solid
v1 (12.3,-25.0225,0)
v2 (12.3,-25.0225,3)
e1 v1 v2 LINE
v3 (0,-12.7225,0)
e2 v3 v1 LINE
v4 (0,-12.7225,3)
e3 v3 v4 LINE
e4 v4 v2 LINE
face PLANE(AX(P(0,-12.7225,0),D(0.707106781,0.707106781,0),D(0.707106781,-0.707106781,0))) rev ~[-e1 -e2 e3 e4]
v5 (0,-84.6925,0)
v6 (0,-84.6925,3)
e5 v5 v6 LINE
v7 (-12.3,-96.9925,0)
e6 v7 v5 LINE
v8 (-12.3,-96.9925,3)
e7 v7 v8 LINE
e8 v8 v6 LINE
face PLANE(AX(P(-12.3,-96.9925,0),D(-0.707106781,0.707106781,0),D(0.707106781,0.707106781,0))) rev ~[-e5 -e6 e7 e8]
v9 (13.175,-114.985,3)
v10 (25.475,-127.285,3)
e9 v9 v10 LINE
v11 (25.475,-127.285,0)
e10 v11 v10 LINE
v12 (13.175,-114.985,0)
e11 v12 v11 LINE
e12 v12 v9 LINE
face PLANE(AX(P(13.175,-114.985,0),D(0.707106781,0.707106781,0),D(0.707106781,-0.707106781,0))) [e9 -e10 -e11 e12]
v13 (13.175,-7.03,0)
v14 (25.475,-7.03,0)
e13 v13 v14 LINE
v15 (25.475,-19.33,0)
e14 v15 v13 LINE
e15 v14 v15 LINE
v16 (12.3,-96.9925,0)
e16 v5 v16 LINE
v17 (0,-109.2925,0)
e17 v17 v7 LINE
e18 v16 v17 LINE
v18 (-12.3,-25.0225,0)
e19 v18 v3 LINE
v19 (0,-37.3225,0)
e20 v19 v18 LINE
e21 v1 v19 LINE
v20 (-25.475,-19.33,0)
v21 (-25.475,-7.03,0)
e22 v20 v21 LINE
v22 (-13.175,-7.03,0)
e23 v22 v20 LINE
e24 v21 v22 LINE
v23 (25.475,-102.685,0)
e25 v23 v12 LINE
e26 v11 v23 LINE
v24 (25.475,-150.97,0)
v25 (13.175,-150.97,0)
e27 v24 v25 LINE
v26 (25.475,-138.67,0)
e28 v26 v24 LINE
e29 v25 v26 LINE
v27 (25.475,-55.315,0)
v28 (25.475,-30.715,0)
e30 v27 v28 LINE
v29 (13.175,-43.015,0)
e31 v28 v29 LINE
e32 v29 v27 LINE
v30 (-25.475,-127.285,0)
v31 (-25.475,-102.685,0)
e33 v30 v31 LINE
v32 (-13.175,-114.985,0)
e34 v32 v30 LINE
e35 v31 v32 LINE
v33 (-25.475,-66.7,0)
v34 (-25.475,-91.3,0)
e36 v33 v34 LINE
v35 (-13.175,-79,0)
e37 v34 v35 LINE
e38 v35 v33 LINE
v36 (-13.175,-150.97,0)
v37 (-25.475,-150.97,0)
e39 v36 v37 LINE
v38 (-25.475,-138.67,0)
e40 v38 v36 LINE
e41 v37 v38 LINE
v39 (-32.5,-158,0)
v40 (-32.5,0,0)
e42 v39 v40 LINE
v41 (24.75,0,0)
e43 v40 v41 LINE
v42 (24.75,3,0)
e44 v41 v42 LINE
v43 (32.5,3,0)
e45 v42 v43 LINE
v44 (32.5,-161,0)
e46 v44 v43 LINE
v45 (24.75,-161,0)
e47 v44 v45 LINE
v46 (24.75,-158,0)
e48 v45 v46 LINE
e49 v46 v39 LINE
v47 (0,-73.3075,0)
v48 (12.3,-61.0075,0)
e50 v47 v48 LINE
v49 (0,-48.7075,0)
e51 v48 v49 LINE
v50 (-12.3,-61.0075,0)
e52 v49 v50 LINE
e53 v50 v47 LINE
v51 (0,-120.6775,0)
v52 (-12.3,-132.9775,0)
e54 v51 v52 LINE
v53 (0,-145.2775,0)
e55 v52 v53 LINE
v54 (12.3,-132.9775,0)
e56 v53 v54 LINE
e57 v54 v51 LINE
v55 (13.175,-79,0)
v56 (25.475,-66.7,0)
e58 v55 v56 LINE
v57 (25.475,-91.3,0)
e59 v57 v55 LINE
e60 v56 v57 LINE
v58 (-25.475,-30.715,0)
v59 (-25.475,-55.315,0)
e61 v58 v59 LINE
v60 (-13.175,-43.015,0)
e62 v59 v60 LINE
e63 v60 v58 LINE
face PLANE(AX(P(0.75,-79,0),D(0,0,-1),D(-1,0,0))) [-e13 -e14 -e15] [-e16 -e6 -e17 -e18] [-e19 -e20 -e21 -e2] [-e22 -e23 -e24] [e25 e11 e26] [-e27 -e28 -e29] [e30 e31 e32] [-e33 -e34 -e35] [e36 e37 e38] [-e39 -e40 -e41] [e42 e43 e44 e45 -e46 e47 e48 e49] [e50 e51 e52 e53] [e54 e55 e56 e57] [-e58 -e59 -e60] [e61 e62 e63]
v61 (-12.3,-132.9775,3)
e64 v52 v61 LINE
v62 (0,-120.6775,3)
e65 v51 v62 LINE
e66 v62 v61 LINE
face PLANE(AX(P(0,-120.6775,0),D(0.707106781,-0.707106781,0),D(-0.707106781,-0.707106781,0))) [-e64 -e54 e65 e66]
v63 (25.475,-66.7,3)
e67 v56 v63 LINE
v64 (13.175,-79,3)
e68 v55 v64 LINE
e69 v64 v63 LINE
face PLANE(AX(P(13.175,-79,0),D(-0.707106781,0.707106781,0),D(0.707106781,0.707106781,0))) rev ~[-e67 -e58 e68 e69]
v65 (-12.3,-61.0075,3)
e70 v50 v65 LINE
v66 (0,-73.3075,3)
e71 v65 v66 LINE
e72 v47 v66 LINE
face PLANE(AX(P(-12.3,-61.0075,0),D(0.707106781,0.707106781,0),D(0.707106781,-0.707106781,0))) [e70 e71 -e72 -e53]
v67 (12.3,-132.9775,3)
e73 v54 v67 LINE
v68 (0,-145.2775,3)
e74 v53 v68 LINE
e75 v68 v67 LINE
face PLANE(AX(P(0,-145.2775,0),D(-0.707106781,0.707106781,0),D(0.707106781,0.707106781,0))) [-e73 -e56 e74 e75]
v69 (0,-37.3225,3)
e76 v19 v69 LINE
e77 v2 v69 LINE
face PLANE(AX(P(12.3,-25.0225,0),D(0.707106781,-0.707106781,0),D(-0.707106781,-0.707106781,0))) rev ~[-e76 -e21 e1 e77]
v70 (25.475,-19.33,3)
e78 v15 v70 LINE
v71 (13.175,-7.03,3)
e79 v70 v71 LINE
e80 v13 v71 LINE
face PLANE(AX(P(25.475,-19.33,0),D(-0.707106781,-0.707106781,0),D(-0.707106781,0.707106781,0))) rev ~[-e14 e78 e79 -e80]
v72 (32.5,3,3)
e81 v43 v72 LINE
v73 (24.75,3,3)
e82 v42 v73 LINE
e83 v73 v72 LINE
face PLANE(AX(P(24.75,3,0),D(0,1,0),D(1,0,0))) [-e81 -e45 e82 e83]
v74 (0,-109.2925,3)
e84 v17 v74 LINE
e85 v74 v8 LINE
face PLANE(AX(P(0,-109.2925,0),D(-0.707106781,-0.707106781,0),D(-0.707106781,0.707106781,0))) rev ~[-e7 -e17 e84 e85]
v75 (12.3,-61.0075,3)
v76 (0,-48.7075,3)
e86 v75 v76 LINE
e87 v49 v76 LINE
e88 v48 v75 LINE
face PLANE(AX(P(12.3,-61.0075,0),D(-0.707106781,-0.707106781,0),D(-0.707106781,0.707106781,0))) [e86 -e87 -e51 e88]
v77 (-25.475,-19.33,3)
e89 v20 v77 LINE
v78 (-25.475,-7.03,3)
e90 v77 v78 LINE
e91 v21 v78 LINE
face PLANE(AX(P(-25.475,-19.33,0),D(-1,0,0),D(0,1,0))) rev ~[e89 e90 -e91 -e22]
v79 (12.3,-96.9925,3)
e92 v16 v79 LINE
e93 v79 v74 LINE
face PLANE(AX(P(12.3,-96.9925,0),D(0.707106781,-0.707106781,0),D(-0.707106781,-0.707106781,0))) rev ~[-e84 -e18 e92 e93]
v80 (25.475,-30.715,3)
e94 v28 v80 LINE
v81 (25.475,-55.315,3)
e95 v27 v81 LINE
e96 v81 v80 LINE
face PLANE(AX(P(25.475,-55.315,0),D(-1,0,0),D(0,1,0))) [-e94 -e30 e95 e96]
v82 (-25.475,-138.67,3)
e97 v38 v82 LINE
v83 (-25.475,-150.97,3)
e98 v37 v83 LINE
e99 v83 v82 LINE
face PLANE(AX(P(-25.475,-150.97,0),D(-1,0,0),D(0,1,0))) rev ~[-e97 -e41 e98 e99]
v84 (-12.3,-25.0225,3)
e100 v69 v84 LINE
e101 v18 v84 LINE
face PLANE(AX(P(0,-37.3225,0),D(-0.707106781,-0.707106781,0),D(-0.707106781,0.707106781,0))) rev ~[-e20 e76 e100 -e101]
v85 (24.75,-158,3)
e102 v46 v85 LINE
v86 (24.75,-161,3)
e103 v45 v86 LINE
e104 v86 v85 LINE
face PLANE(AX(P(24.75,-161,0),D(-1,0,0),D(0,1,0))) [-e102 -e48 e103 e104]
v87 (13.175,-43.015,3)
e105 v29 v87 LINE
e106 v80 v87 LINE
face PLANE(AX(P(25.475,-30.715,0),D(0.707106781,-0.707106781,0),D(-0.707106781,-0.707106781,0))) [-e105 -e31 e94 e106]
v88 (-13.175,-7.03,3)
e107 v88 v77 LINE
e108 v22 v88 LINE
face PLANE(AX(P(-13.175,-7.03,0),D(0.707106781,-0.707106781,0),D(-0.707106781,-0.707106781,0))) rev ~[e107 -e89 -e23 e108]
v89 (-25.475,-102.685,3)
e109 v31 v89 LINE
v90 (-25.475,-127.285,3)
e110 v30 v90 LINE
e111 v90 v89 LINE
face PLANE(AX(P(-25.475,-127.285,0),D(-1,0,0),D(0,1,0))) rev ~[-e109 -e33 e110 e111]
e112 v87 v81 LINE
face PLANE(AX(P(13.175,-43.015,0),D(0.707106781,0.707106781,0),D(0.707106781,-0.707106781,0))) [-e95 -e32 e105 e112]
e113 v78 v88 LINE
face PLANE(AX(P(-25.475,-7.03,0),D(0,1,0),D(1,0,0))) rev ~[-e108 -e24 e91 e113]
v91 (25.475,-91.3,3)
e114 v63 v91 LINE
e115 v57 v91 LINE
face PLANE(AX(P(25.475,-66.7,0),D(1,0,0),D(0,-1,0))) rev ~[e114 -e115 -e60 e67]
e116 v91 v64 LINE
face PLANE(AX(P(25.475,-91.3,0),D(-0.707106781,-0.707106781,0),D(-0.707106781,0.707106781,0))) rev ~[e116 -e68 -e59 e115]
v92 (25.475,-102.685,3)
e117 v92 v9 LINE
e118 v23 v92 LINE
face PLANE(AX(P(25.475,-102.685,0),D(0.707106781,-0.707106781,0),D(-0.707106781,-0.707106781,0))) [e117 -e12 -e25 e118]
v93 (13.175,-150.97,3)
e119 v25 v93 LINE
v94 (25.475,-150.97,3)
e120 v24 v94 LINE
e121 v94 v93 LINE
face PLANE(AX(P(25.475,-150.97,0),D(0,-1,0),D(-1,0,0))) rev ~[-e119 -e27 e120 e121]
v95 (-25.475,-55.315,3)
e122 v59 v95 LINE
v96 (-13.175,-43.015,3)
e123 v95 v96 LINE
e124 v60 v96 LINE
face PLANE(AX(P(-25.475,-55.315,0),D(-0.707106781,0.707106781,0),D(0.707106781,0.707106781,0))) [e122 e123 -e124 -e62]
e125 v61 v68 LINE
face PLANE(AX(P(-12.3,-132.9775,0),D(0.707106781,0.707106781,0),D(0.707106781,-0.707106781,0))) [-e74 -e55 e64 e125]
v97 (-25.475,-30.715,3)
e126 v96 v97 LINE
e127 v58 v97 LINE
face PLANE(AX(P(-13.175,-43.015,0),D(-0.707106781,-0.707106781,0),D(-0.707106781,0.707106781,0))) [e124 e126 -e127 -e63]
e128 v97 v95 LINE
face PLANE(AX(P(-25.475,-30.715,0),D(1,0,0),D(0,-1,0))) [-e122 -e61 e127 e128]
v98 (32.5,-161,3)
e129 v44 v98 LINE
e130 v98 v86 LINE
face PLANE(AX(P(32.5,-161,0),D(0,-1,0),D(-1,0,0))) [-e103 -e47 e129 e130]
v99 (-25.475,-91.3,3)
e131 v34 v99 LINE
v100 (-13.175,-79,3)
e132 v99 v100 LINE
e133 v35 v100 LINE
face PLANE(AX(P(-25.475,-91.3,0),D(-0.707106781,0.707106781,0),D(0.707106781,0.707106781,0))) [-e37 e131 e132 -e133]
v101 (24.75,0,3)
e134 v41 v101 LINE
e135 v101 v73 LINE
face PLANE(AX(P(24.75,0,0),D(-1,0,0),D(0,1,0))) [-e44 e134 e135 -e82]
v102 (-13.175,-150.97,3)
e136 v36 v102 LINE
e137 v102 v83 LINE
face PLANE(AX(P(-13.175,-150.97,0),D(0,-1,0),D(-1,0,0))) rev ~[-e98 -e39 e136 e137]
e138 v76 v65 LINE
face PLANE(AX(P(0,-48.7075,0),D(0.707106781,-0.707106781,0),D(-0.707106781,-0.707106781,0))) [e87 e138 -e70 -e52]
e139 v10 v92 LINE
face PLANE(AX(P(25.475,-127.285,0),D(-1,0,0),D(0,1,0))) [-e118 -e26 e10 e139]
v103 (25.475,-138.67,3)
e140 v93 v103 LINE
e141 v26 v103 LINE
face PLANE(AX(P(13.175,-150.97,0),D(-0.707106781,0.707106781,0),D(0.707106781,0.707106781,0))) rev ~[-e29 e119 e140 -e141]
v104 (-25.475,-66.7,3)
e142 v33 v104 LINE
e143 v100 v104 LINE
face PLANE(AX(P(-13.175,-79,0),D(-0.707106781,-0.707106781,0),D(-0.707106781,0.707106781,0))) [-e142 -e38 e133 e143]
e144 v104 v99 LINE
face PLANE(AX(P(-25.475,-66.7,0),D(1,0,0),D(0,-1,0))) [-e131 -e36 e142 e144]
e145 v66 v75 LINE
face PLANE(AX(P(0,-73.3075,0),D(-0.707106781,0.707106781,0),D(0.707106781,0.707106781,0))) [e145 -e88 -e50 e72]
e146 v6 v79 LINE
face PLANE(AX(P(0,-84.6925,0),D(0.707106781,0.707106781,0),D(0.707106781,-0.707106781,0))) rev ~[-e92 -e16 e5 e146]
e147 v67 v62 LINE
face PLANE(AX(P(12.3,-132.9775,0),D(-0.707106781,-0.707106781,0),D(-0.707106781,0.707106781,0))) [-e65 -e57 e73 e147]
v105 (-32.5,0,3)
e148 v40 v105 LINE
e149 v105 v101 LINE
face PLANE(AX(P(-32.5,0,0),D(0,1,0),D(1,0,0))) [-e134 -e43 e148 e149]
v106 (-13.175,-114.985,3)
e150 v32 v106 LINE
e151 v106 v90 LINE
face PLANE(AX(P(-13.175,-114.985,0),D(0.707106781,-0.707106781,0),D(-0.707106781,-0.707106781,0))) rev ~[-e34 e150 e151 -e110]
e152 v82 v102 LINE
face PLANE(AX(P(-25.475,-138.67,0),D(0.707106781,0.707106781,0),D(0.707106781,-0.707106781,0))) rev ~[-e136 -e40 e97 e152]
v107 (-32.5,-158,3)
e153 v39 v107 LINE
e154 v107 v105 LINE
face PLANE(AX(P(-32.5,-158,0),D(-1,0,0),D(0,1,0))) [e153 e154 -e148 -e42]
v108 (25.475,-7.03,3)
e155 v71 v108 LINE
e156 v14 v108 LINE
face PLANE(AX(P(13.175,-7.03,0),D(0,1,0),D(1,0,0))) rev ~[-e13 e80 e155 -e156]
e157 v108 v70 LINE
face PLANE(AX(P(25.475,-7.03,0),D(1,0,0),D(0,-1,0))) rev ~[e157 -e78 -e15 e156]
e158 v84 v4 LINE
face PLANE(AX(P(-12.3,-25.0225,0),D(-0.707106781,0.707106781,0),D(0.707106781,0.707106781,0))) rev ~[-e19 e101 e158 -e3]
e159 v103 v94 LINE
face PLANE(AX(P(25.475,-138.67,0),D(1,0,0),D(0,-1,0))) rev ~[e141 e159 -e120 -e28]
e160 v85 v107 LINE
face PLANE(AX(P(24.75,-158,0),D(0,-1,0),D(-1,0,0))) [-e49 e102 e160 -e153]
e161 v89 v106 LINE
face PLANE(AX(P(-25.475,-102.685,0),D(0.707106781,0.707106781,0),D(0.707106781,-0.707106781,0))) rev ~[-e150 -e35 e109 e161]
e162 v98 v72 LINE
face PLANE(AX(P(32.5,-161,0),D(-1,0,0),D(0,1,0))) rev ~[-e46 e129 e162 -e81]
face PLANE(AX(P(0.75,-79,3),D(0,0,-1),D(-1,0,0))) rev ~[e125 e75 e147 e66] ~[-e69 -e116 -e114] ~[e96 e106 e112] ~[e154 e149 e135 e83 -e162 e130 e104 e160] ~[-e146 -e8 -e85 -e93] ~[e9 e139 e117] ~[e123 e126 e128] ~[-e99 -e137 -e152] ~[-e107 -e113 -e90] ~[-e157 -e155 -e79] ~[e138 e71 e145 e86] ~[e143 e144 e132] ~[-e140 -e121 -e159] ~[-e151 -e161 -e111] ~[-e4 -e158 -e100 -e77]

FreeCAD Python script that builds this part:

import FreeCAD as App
import Part
import Sketcher


def add_polygon(sketch, points):
    """Adds a closed chain of lines whose ends are joined by coincident constraints."""
    first, n = sketch.GeometryCount, len(points)
    for a, b in zip(points, points[1:] + points[:1]):
        sketch.addGeometry(Part.LineSegment(App.Vector(*a, 0), App.Vector(*b, 0)), False)
    for i in range(n):
        sketch.addConstraint(Sketcher.Constraint("Coincident", first + i, 2, first + (i + 1) % n, 1))

doc = App.newDocument("Part")
body = doc.addObject("PartDesign::Body", "Body")

sketch1 = body.newObject("Sketcher::SketchObject", "Sketch")
sketch1.AttachmentSupport = (doc.getObject("XY_Plane"), [""])
sketch1.MapMode = "FlatFace"
add_polygon(sketch1, [(24.8, 0), (-32.5, 0), (-32.5, -158), (24.8, -158), (24.8, -161), (32.5, -161), (32.5, 3), (24.8, 3)])
add_polygon(sketch1, [(13.2, -151), (25.5, -138.7), (25.5, -151)])
add_polygon(sketch1, [(-12.3, -133), (0, -120.7), (12.3, -133), (0, -145.3)])
add_polygon(sketch1, [(13.2, -115), (25.5, -102.7), (25.5, -127.3)])
add_polygon(sketch1, [(0, -84.7), (12.3, -97), (0, -109.3), (-12.3, -97)])
add_polygon(sketch1, [(-13.2, -151), (-25.5, -151), (-25.5, -138.7)])
add_polygon(sketch1, [(-13.2, -115), (-25.5, -127.3), (-25.5, -102.7)])
add_polygon(sketch1, [(13.2, -79), (25.5, -66.7), (25.5, -91.3)])
add_polygon(sketch1, [(0, -48.7), (12.3, -61), (0, -73.3), (-12.3, -61)])
add_polygon(sketch1, [(13.2, -43), (25.5, -30.7), (25.5, -55.3)])
add_polygon(sketch1, [(13.2, -7), (25.5, -7), (25.5, -19.3)])
add_polygon(sketch1, [(0, -12.7), (12.3, -25), (0, -37.3), (-12.3, -25)])
add_polygon(sketch1, [(-13.2, -79), (-25.5, -91.3), (-25.5, -66.7)])
add_polygon(sketch1, [(-13.2, -43), (-25.5, -55.3), (-25.5, -30.7)])
add_polygon(sketch1, [(-13.2, -7), (-25.5, -19.3), (-25.5, -7)])
sketch1.addConstraint([
    Sketcher.Constraint("Horizontal", 0),
    Sketcher.Constraint("Vertical", 1),
    Sketcher.Constraint("Horizontal", 2),
    Sketcher.Constraint("Vertical", 3),
    Sketcher.Constraint("Horizontal", 4),
    Sketcher.Constraint("Vertical", 5),
    Sketcher.Constraint("Horizontal", 6),
    Sketcher.Constraint("Vertical", 7),
    Sketcher.Constraint("Vertical", 9),
    Sketcher.Constraint("Horizontal", 10),
    Sketcher.Constraint("Vertical", 16),
    Sketcher.Constraint("Horizontal", 22),
    Sketcher.Constraint("Vertical", 23),
    Sketcher.Constraint("Vertical", 26),
    Sketcher.Constraint("Vertical", 29),
    Sketcher.Constraint("Vertical", 36),
    Sketcher.Constraint("Horizontal", 38),
    Sketcher.Constraint("Vertical", 39),
    Sketcher.Constraint("Vertical", 46),
    Sketcher.Constraint("Vertical", 49),
    Sketcher.Constraint("Vertical", 52),
    Sketcher.Constraint("Horizontal", 53),
    Sketcher.Constraint("Symmetric", 12, 2, 14, 2, -2),
    Sketcher.Constraint("Symmetric", 18, 2, 20, 2, -2),
    Sketcher.Constraint("Symmetric", 9, 2, 22, 2, -2),
    Sketcher.Constraint("Symmetric", 16, 2, 25, 2, -2),
    Sketcher.Constraint("Symmetric", 17, 2, 27, 2, -2),
    Sketcher.Constraint("Symmetric", 31, 2, 33, 2, -2),
    Sketcher.Constraint("Symmetric", 41, 2, 43, 2, -2),
    Sketcher.Constraint("Symmetric", 29, 2, 45, 2, -2),
    Sketcher.Constraint("Symmetric", 30, 2, 47, 2, -2),
    Sketcher.Constraint("Symmetric", 36, 2, 48, 2, -2),
    Sketcher.Constraint("Symmetric", 37, 2, 50, 2, -2),
    Sketcher.Constraint("Symmetric", 39, 2, 51, 2, -2),
    Sketcher.Constraint("Symmetric", 40, 2, 53, 2, -2),
    Sketcher.Constraint("PointOnObject", 0, 2, -1),
    Sketcher.Constraint("PointOnObject", 11, 2, -2),
    Sketcher.Constraint("PointOnObject", 13, 2, -2),
    Sketcher.Constraint("PointOnObject", 19, 2, -2),
    Sketcher.Constraint("PointOnObject", 21, 2, -2),
    Sketcher.Constraint("PointOnObject", 32, 2, -2),
    Sketcher.Constraint("PointOnObject", 34, 2, -2),
    Sketcher.Constraint("PointOnObject", 42, 2, -2),
    Sketcher.Constraint("PointOnObject", 44, 2, -2),
    Sketcher.Constraint("Parallel", 8, 11),
    Sketcher.Constraint("Perpendicular", 11, 12),
    Sketcher.Constraint("Perpendicular", 12, 13),
    Sketcher.Constraint("Perpendicular", 14, 15),
    Sketcher.Constraint("Perpendicular", 15, 17),
    Sketcher.Constraint("Parallel", 17, 18),
    Sketcher.Constraint("Perpendicular", 18, 19),
    Sketcher.Constraint("Perpendicular", 21, 24),
    Sketcher.Constraint("Perpendicular", 25, 27),
    Sketcher.Constraint("Perpendicular", 27, 28),
    Sketcher.Constraint("Perpendicular", 28, 30),
    Sketcher.Constraint("Parallel", 30, 31),
    Sketcher.Constraint("Perpendicular", 31, 32),
    Sketcher.Constraint("Parallel", 34, 35),
    Sketcher.Constraint("Perpendicular", 35, 37),
    Sketcher.Constraint("Parallel", 37, 40),
    Sketcher.Constraint("Parallel", 40, 41),
    Sketcher.Constraint("Perpendicular", 41, 42),
    Sketcher.Constraint("Perpendicular", 45, 47),
    Sketcher.Constraint("Perpendicular", 48, 50),
    Sketcher.Constraint("Horizontal", 8, 2, 23, 2),
    Sketcher.Constraint("Vertical", 3, 2, 6, 2),
    Sketcher.Constraint("Vertical", 9, 2, 15, 2),
    Sketcher.Constraint("Vertical", 10, 2, 17, 2),
    Sketcher.Constraint("Vertical", 12, 2, 18, 2),
    Sketcher.Constraint("Vertical", 16, 2, 28, 2),
    Sketcher.Constraint("Vertical", 17, 2, 30, 2),
    Sketcher.Constraint("Vertical", 18, 2, 31, 2),
    Sketcher.Constraint("Vertical", 29, 2, 35, 2),
    Sketcher.Constraint("Vertical", 30, 2, 37, 2),
    Sketcher.Constraint("Vertical", 36, 2, 38, 2),
    Sketcher.Constraint("Vertical", 37, 2, 40, 2),
    Sketcher.Constraint("Vertical", 31, 2, 41, 2),
    Sketcher.Constraint("Equal", 3, 7),
    Sketcher.Constraint("Equal", 8, 11),
    Sketcher.Constraint("DistanceY", 1, 2, 1, 1, 158.0),
    Sketcher.Constraint("DistanceY", 3, 2, 3, 1, 3.0),
    Sketcher.Constraint("DistanceX", 10, 2, 10, 1, 12.3),
    Sketcher.Constraint("DistanceY", 30, 2, -1, 1, 79.0),
    Sketcher.Constraint("DistanceX", 1, 2, 4, 2, 65.0),
    Sketcher.Constraint("DistanceX", 0, 2, 0, 1, 57.25),
    Sketcher.Constraint("DistanceX", 0, 2, -1, 1, 32.5),
    Sketcher.Constraint("DistanceY", 8, 2, -1, 1, 138.67),
    Sketcher.Constraint("DistanceY", 38, 2, -1, 1, 7.03),
    Sketcher.Constraint("DistanceX", 22, 2, 10, 2, 38.65),
    Sketcher.Constraint("DistanceY", 15, 2, -1, 1, 102.685),
    Sketcher.Constraint("DistanceY", 35, 2, -1, 1, 30.715),
    Sketcher.Constraint("DistanceY", 11, 2, 18, 2, 23.685),
    Sketcher.Constraint("DistanceY", 21, 2, 31, 2, 23.685),
    Sketcher.Constraint("DistanceY", 34, 2, 42, 2, 11.385),
    Sketcher.Constraint("DistanceY", 11, 2, -1, 1, 120.6775),
])
pad1 = body.newObject("PartDesign::Pad", "Pad")
pad1.Profile = sketch1
pad1.Length = 3

doc.recompute()
